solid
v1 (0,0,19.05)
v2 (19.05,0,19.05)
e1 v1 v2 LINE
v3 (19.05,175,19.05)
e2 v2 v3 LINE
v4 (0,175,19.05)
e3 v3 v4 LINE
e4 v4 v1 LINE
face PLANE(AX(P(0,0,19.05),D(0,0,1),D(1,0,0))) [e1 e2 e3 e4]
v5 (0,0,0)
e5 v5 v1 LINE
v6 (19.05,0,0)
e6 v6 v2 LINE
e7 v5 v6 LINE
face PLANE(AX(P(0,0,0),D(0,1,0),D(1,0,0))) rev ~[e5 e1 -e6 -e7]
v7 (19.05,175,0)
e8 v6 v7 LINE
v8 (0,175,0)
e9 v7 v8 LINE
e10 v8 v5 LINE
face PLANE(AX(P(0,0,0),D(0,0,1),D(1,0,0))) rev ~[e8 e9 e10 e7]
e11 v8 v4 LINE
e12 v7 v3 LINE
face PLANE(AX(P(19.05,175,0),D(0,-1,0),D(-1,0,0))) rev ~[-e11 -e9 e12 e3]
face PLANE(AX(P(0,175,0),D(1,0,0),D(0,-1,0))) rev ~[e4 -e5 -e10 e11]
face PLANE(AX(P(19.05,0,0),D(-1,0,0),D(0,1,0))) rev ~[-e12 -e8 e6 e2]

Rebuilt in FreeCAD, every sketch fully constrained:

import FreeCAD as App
import Part
import Sketcher


def add_polygon(sketch, points):
    """Adds a closed chain of lines whose ends are joined by coincident constraints."""
    first, n = sketch.GeometryCount, len(points)
    for a, b in zip(points, points[1:] + points[:1]):
        sketch.addGeometry(Part.LineSegment(App.Vector(*a, 0), App.Vector(*b, 0)), False)
    for i in range(n):
        sketch.addConstraint(Sketcher.Constraint("Coincident", first + i, 2, first + (i + 1) % n, 1))

doc = App.newDocument("Part")
body = doc.addObject("PartDesign::Body", "Body")

sketch1 = body.newObject("Sketcher::SketchObject", "Sketch")
sketch1.AttachmentSupport = (doc.getObject("XY_Plane"), [""])
sketch1.MapMode = "FlatFace"
add_polygon(sketch1, [(0, 175), (0, 0), (19.05, 0), (19.05, 175)])
sketch1.addConstraint([
    Sketcher.Constraint("Vertical", 0),
    Sketcher.Constraint("Horizontal", 1),
    Sketcher.Constraint("Vertical", 2),
    Sketcher.Constraint("Horizontal", 3),
    Sketcher.Constraint("Coincident", 0, 2, -1, 1),
    Sketcher.Constraint("DistanceY", 0, 2, 0, 1, 175.0),
    Sketcher.Constraint("DistanceX", 1, 1, 1, 2, 19.05),
])
pad1 = body.newObject("PartDesign::Pad", "Pad")
pad1.Profile = sketch1
pad1.Length = 19.05

doc.recompute()
